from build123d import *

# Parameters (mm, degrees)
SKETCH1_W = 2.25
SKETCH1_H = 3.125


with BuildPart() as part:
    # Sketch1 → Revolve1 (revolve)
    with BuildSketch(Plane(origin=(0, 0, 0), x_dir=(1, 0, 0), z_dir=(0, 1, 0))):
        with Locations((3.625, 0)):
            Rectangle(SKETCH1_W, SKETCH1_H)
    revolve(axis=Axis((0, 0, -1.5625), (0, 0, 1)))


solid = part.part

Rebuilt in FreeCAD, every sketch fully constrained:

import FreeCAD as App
import Part
import Sketcher
from FreeCAD import Vector


def add_polygon(sketch, points):
    """Adds a closed chain of lines whose ends are joined by coincident constraints."""
    first, n = sketch.GeometryCount, len(points)
    for a, b in zip(points, points[1:] + points[:1]):
        sketch.addGeometry(Part.LineSegment(App.Vector(*a, 0), App.Vector(*b, 0)), False)
    for i in range(n):
        sketch.addConstraint(Sketcher.Constraint("Coincident", first + i, 2, first + (i + 1) % n, 1))

doc = App.newDocument("Part")
body = doc.addObject("PartDesign::Body", "Body")

# Sketch on XZ plane
sketch1 = body.newObject("Sketcher::SketchObject", "Sketch")
sketch1.AttachmentSupport = (doc.getObject("XZ_Plane"), [""])
sketch1.MapMode = "FlatFace"
add_polygon(sketch1, [(2.5, -1.5625), (2.5, 1.5625), (4.75, 1.5625), (4.75, -1.5625)])  # lines 0-3
sketch1.addConstraint([
    Sketcher.Constraint("Vertical", 0),
    Sketcher.Constraint("Horizontal", 1),
    Sketcher.Constraint("Vertical", 2),
    Sketcher.Constraint("Horizontal", 3),
    Sketcher.Constraint("DistanceX", 1, 1, 1, 2, 2.25),
    Sketcher.Constraint("DistanceX", -1, 1, 0, 2, 2.5),
    Sketcher.Constraint("DistanceY", 0, 1, 0, 2, 3.125),
    Sketcher.Constraint("DistanceY", -1, 1, 0, 2, 1.5625),
])
revolution = body.newObject("PartDesign::Revolution", "Revolution")
revolution.Profile = sketch1
revolution.ReferenceAxis = (sketch1, ["V_Axis"])
revolution.Angle = 360

doc.recompute()
